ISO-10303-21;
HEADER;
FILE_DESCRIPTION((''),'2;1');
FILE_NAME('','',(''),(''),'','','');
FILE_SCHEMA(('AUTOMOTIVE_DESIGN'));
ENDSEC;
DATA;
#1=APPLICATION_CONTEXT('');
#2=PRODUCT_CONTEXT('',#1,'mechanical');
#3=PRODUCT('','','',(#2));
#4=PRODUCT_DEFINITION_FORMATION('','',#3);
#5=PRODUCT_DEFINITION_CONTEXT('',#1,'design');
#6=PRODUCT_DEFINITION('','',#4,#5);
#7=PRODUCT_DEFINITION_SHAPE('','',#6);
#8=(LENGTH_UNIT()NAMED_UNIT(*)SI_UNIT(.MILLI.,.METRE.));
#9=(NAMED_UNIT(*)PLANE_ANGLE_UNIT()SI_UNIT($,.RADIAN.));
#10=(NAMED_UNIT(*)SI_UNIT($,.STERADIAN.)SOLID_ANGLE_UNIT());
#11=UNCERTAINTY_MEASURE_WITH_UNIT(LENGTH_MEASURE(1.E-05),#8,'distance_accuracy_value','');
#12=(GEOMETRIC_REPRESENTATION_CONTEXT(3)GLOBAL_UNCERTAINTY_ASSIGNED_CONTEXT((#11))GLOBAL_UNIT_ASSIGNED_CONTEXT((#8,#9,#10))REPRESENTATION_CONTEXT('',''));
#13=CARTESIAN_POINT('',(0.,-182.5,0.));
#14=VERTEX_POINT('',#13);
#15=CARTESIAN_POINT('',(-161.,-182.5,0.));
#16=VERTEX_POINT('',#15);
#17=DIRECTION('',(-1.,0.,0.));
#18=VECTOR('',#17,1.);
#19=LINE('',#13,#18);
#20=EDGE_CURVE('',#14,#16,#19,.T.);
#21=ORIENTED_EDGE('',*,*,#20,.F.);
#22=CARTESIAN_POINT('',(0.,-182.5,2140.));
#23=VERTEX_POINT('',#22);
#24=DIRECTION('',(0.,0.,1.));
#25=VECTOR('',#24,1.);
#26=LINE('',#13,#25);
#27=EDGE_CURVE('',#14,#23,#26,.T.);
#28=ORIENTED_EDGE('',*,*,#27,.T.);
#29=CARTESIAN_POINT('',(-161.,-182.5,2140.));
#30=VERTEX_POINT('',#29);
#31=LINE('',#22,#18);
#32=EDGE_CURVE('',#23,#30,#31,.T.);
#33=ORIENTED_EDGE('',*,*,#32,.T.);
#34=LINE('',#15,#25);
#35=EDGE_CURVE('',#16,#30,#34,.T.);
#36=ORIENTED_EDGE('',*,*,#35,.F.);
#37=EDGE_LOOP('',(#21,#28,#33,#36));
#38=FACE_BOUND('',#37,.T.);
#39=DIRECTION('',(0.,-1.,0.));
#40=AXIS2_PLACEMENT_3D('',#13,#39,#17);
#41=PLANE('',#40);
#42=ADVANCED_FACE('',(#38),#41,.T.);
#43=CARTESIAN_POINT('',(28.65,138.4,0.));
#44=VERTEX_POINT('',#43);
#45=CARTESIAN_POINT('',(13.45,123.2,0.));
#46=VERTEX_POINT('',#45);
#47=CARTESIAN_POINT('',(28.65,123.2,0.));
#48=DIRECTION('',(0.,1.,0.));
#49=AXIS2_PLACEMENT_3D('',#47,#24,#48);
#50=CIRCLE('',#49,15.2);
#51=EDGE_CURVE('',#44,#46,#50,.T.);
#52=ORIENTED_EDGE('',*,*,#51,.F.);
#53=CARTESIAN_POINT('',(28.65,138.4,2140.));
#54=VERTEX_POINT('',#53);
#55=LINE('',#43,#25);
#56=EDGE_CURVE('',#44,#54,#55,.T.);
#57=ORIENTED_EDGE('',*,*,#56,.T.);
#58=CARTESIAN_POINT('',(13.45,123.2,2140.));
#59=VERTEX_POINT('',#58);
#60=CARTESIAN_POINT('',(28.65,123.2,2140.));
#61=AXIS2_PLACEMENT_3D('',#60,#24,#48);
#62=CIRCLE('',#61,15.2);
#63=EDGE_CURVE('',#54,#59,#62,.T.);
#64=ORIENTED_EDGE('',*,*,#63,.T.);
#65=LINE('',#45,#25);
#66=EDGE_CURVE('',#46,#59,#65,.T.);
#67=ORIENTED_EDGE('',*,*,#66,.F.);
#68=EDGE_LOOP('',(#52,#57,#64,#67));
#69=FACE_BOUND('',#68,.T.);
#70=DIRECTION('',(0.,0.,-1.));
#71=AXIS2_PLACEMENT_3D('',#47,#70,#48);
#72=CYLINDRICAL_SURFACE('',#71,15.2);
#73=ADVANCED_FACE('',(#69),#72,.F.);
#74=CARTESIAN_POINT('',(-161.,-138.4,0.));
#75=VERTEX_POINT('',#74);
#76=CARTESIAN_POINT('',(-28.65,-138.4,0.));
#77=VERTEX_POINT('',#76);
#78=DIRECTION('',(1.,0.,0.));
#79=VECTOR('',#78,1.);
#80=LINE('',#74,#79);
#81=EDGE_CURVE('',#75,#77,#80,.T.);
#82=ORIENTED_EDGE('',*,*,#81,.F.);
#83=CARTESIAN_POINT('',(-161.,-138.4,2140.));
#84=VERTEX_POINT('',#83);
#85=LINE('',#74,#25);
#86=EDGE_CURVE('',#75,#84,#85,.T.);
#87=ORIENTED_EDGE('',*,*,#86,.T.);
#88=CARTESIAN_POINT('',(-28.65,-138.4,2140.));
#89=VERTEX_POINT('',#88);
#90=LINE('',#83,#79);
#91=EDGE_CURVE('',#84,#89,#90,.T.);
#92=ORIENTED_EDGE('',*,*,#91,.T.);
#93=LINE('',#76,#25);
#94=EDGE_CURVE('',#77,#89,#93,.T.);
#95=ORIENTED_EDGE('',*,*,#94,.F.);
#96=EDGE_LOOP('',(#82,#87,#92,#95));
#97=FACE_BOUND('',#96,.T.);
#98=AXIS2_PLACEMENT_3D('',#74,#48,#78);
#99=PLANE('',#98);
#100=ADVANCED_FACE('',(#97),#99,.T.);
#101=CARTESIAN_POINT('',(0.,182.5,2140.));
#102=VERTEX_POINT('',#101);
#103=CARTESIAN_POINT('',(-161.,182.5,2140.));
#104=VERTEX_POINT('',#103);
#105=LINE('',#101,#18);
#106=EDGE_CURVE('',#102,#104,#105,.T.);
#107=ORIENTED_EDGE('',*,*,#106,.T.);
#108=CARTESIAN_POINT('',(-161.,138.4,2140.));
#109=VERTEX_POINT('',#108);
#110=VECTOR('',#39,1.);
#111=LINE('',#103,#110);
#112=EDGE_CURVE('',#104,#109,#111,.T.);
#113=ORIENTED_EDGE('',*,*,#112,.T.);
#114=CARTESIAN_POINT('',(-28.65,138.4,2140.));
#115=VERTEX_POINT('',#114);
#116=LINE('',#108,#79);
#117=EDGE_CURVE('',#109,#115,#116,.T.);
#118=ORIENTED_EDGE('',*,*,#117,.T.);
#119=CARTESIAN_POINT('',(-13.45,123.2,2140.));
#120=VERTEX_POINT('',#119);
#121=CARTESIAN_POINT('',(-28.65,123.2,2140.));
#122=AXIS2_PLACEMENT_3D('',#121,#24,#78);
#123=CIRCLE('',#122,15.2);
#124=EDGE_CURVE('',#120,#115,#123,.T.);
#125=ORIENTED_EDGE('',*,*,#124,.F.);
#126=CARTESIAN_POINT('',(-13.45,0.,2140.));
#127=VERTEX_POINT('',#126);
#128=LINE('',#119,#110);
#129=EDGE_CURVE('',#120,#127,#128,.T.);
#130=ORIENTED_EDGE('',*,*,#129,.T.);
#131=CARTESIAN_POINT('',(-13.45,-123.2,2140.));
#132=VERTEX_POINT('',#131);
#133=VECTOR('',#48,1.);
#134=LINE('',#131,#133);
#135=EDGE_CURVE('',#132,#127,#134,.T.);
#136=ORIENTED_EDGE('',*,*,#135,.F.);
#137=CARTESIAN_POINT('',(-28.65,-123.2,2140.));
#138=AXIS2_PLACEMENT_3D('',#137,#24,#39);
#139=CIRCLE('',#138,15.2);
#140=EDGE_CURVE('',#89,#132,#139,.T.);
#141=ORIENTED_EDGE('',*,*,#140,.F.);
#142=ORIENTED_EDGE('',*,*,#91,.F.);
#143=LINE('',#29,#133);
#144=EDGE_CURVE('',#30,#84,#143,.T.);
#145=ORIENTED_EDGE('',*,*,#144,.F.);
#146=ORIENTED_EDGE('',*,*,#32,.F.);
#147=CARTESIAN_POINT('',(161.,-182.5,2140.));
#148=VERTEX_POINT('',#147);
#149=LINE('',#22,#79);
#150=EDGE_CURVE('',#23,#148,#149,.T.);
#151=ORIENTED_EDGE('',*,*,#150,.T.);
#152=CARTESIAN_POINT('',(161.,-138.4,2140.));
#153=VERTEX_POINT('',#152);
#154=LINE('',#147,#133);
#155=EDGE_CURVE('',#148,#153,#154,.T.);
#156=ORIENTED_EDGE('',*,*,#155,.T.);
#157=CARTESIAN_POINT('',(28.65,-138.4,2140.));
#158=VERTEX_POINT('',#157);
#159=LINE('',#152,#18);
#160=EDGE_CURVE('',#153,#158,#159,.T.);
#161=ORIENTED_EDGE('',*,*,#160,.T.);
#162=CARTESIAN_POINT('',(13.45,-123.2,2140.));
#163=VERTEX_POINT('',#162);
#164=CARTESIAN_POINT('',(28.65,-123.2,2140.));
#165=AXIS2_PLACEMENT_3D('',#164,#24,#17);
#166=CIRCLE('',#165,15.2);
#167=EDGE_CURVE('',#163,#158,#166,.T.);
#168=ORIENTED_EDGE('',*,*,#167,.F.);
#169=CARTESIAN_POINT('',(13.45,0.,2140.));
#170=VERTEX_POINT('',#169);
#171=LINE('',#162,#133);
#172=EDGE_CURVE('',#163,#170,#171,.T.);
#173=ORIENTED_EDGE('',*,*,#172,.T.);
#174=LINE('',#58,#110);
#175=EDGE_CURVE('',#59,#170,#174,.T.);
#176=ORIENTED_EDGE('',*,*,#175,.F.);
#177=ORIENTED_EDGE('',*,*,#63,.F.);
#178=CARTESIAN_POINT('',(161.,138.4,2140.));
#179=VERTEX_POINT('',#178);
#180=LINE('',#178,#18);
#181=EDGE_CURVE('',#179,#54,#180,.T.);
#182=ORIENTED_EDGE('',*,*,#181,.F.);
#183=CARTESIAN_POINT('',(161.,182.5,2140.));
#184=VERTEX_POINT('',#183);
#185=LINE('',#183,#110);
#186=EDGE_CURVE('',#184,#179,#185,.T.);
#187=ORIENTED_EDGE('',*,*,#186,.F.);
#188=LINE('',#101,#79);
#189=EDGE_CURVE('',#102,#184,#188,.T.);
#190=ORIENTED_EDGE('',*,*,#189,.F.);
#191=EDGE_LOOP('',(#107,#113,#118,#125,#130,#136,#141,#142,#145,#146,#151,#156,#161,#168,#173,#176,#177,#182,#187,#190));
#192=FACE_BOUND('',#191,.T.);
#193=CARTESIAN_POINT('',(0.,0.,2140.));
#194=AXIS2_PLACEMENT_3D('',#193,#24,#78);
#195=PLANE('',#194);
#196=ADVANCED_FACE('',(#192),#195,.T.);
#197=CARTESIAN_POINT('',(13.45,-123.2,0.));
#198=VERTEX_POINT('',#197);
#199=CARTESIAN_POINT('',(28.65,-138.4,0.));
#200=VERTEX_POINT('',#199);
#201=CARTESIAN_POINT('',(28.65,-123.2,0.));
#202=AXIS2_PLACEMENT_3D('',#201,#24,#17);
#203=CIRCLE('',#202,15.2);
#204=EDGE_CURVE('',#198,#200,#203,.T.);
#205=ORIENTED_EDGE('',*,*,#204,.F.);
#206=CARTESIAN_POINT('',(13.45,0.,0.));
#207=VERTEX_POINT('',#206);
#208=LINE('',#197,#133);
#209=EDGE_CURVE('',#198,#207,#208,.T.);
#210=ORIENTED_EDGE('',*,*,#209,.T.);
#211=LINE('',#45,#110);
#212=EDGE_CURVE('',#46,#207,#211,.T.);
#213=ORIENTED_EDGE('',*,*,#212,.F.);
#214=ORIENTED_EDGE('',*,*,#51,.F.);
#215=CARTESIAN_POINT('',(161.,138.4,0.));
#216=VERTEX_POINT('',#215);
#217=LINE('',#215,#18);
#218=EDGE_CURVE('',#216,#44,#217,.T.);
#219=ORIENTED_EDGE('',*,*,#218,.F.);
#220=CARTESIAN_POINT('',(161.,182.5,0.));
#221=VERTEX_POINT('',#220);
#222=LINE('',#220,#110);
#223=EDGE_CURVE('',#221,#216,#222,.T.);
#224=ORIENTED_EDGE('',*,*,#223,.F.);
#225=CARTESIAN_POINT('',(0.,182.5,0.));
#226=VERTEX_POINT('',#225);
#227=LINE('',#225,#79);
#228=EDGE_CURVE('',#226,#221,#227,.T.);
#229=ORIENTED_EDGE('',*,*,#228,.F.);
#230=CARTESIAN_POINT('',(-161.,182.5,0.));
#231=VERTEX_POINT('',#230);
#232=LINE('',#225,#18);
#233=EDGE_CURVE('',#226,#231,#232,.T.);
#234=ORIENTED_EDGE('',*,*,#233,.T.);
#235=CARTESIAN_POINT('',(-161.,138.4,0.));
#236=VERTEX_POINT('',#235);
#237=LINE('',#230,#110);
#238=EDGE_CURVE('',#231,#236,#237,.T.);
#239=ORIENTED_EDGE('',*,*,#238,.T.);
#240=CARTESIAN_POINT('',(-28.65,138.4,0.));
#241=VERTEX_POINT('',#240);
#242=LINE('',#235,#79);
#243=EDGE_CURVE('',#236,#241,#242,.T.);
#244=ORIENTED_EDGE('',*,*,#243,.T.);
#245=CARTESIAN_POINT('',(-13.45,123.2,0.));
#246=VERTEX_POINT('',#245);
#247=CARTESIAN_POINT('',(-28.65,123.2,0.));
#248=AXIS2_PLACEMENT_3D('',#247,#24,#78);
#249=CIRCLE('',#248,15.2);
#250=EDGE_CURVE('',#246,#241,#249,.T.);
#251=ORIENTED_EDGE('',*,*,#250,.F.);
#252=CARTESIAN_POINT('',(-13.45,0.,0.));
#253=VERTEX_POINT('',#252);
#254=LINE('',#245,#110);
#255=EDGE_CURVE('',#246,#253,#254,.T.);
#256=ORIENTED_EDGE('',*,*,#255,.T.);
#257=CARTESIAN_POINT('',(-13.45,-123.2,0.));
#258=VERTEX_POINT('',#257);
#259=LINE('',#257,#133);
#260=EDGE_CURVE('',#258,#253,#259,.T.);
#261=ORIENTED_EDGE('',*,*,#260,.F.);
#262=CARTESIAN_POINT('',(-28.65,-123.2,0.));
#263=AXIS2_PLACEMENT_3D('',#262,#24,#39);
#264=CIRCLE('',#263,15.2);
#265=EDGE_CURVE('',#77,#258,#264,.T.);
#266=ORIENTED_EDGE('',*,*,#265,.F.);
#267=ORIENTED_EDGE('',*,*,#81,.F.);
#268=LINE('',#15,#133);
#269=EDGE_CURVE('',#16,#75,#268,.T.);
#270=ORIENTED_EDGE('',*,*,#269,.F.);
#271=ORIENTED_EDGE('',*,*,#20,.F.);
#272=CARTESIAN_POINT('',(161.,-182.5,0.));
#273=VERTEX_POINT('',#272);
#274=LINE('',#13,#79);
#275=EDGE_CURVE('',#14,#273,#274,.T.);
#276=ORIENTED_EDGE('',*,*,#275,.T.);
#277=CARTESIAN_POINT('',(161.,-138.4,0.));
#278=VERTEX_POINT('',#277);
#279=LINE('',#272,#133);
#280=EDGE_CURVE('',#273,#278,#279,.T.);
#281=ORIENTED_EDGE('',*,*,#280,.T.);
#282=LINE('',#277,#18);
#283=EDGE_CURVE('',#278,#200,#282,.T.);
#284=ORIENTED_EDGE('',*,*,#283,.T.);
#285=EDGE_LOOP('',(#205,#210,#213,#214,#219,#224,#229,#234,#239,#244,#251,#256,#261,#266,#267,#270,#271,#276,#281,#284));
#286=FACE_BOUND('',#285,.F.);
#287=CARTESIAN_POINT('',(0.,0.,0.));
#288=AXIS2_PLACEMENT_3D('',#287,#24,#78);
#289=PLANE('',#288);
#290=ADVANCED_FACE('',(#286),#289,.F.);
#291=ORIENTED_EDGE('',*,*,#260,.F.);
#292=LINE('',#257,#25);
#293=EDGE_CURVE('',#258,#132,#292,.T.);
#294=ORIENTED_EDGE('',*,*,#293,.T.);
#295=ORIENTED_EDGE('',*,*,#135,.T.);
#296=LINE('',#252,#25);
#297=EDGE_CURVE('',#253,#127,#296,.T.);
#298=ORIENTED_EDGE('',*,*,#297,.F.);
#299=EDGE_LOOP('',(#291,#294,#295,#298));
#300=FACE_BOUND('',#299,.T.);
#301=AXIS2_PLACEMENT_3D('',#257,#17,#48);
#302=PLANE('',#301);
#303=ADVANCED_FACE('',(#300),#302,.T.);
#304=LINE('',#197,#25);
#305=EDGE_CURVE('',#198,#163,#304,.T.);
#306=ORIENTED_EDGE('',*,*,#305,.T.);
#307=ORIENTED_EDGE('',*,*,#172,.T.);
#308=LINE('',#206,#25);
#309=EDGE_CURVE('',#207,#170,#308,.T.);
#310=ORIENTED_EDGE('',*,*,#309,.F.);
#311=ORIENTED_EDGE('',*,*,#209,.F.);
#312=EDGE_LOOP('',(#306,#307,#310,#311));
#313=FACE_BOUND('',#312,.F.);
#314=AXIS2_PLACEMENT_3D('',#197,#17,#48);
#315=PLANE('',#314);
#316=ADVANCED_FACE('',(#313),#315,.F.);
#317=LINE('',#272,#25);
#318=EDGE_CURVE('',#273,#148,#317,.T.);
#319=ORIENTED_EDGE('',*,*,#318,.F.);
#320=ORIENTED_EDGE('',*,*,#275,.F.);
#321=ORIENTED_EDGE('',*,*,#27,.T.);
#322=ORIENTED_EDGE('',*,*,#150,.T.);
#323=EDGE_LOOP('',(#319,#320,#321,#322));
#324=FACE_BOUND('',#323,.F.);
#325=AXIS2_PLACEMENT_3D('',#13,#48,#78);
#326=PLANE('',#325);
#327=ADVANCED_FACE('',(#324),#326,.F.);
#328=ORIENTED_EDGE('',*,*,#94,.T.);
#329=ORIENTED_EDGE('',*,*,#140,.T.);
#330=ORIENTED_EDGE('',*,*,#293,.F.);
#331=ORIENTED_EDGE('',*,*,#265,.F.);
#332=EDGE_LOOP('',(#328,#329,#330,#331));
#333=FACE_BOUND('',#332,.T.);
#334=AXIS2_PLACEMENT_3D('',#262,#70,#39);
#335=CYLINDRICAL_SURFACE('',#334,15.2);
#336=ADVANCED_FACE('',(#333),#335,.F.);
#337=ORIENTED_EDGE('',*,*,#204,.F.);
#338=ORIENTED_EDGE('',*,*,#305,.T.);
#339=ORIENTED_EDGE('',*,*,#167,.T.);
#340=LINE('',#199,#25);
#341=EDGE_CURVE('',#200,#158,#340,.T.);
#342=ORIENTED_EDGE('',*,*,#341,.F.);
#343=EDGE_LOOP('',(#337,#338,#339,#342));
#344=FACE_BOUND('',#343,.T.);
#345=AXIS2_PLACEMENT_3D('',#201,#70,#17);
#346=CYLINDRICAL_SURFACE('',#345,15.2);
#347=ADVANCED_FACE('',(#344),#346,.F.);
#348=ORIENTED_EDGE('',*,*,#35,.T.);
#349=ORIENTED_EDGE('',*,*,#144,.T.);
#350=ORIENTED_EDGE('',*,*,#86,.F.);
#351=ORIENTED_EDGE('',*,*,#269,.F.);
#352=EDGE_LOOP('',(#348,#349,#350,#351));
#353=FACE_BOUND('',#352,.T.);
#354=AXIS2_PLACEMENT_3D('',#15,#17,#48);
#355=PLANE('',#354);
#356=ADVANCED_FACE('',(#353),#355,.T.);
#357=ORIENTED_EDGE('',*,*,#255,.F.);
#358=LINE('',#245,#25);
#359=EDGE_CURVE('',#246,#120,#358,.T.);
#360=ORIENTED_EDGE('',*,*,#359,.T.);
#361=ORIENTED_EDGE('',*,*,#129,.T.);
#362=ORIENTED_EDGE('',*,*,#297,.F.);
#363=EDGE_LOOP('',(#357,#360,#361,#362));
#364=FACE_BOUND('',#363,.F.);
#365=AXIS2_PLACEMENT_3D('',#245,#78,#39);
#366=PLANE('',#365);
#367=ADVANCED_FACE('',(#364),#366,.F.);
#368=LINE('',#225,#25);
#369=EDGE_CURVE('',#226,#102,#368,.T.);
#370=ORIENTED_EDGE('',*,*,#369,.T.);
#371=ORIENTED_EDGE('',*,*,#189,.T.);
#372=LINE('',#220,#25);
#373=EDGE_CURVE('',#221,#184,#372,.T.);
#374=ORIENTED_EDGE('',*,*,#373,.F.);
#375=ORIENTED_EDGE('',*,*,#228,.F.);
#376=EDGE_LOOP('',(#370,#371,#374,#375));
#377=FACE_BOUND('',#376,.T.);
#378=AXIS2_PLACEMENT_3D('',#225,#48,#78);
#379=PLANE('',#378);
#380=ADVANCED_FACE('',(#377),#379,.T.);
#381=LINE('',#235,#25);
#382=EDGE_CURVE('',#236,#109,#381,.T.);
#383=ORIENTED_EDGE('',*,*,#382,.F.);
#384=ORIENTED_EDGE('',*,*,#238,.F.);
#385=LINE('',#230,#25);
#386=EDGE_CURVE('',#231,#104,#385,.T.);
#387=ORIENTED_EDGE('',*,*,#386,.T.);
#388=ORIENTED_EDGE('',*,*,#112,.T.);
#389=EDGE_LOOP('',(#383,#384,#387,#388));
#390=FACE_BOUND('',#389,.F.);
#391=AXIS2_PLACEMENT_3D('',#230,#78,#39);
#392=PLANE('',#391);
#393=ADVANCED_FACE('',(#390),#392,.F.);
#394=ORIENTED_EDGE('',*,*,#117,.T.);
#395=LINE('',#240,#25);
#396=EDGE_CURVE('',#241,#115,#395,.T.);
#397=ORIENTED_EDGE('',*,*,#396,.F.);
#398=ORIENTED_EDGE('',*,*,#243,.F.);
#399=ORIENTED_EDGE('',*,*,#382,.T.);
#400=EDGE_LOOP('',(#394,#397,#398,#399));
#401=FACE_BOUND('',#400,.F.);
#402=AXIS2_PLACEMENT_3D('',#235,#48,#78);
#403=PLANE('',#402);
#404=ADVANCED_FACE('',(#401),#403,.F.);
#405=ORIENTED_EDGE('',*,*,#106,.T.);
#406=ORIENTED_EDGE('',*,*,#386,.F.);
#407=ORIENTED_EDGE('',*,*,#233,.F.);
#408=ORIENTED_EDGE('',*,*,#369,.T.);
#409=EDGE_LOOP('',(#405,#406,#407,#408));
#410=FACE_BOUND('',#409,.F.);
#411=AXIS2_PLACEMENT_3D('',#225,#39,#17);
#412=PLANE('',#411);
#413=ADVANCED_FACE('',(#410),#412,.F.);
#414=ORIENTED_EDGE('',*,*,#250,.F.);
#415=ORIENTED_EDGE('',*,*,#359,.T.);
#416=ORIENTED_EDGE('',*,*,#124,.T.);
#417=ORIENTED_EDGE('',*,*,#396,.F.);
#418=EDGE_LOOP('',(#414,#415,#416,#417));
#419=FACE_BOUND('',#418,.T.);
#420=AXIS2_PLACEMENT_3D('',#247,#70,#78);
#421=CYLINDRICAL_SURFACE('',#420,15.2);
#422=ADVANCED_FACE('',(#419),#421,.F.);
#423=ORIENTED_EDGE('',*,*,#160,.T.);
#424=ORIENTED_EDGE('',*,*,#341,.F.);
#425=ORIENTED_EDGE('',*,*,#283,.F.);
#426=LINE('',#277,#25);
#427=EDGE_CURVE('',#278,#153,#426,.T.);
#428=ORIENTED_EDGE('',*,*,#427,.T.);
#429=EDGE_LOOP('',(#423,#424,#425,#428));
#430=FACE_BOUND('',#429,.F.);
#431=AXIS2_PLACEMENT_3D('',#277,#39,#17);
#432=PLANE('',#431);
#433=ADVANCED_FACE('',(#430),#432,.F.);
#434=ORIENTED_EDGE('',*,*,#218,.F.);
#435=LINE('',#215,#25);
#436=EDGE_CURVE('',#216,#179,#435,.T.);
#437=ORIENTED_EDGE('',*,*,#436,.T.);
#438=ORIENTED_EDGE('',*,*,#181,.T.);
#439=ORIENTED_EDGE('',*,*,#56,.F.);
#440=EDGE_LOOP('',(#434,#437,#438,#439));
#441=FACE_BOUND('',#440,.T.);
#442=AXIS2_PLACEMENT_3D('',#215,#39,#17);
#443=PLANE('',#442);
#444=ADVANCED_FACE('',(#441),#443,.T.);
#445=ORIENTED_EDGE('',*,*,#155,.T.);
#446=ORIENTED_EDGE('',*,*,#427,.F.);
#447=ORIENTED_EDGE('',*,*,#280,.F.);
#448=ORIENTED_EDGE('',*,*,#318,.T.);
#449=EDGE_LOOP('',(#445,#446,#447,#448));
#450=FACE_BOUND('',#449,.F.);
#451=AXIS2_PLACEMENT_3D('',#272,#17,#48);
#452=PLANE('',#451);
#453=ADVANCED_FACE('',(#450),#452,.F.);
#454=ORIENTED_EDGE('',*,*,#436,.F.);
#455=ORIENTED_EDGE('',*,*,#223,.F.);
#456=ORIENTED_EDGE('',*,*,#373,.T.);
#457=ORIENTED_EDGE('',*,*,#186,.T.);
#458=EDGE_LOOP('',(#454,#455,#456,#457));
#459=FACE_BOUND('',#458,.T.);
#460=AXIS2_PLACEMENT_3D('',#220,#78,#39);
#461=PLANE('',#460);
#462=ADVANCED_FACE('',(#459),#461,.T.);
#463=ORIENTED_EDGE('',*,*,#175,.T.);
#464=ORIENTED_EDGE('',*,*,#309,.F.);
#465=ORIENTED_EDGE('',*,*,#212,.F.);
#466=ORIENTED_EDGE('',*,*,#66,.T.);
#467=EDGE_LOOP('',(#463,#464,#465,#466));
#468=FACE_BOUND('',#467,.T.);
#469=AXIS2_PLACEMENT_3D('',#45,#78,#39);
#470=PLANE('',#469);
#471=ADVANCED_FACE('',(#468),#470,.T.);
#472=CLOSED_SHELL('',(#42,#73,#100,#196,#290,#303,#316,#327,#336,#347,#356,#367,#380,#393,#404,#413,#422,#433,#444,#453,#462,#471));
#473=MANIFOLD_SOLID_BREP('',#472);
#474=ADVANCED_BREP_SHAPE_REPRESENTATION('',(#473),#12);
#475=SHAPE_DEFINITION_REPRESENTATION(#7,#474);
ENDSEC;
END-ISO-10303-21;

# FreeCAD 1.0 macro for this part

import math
import FreeCAD as App
import Part
import Sketcher

doc = App.newDocument("Part")
body = doc.addObject("PartDesign::Body", "Body")

# Sketch on XY plane
sketch1 = body.newObject("Sketcher::SketchObject", "Sketch")
sketch1.AttachmentSupport = (doc.getObject("XY_Plane"), [""])
sketch1.MapMode = "FlatFace"
sketch1.addGeometry(Part.LineSegment(App.Vector(-161, -138, 0), App.Vector(-161, -182, 0)), False)
sketch1.addGeometry(Part.LineSegment(App.Vector(-161, -182, 0), App.Vector(161, -182, 0)), False)
sketch1.addGeometry(Part.LineSegment(App.Vector(161, -182, 0), App.Vector(161, -138, 0)), False)
sketch1.addGeometry(Part.LineSegment(App.Vector(161, -138, 0), App.Vector(29, -138, 0)), False)
sketch1.addGeometry(Part.ArcOfCircle(Part.Circle(App.Vector(29, -123, 0), App.Vector(0, 0, 1), 15), math.radians(180), math.radians(270)), False)
sketch1.addGeometry(Part.LineSegment(App.Vector(13, -123, 0), App.Vector(13, 123, 0)), False)
sketch1.addGeometry(Part.ArcOfCircle(Part.Circle(App.Vector(29, 123, 0), App.Vector(0, 0, 1), 15), math.radians(90), math.radians(180)), False)
sketch1.addGeometry(Part.LineSegment(App.Vector(29, 138, 0), App.Vector(161, 138, 0)), False)
sketch1.addGeometry(Part.LineSegment(App.Vector(161, 138, 0), App.Vector(161, 182, 0)), False)
sketch1.addGeometry(Part.LineSegment(App.Vector(161, 182, 0), App.Vector(-161, 182, 0)), False)
sketch1.addGeometry(Part.LineSegment(App.Vector(-161, 182, 0), App.Vector(-161, 138, 0)), False)
sketch1.addGeometry(Part.LineSegment(App.Vector(-161, 138, 0), App.Vector(-29, 138, 0)), False)
sketch1.addGeometry(Part.ArcOfCircle(Part.Circle(App.Vector(-29, 123, 0), App.Vector(0, 0, 1), 15), math.radians(0), math.radians(90)), False)
sketch1.addGeometry(Part.LineSegment(App.Vector(-13, 123, 0), App.Vector(-13, -123, 0)), False)
sketch1.addGeometry(Part.ArcOfCircle(Part.Circle(App.Vector(-29, -123, 0), App.Vector(0, 0, 1), 15), math.radians(-90), math.radians(0)), False)
sketch1.addGeometry(Part.LineSegment(App.Vector(-29, -138, 0), App.Vector(-161, -138, 0)), False)
sketch1.addConstraint(Sketcher.Constraint("Coincident", 0, 2, 1, 1))
sketch1.addConstraint(Sketcher.Constraint("Coincident", 1, 2, 2, 1))
sketch1.addConstraint(Sketcher.Constraint("Coincident", 2, 2, 3, 1))
sketch1.addConstraint(Sketcher.Constraint("Tangent", 3, 2, 4, 2))
sketch1.addConstraint(Sketcher.Constraint("Tangent", 4, 1, 5, 1))
sketch1.addConstraint(Sketcher.Constraint("Tangent", 5, 2, 6, 2))
sketch1.addConstraint(Sketcher.Constraint("Tangent", 6, 1, 7, 1))
sketch1.addConstraint(Sketcher.Constraint("Coincident", 7, 2, 8, 1))
sketch1.addConstraint(Sketcher.Constraint("Coincident", 8, 2, 9, 1))
sketch1.addConstraint(Sketcher.Constraint("Coincident", 9, 2, 10, 1))
sketch1.addConstraint(Sketcher.Constraint("Coincident", 10, 2, 11, 1))
sketch1.addConstraint(Sketcher.Constraint("Tangent", 11, 2, 12, 2))
sketch1.addConstraint(Sketcher.Constraint("Tangent", 12, 1, 13, 1))
sketch1.addConstraint(Sketcher.Constraint("Tangent", 13, 2, 14, 2))
sketch1.addConstraint(Sketcher.Constraint("Tangent", 14, 1, 15, 1))
sketch1.addConstraint(Sketcher.Constraint("Coincident", 15, 2, 0, 1))
sketch1.addConstraint(Sketcher.Constraint("Vertical", 0))
sketch1.addConstraint(Sketcher.Constraint("Horizontal", 1))
sketch1.addConstraint(Sketcher.Constraint("Vertical", 2))
sketch1.addConstraint(Sketcher.Constraint("Horizontal", 3))
sketch1.addConstraint(Sketcher.Constraint("Vertical", 5))
sketch1.addConstraint(Sketcher.Constraint("Horizontal", 7))
sketch1.addConstraint(Sketcher.Constraint("Vertical", 8))
sketch1.addConstraint(Sketcher.Constraint("Horizontal", 9))
sketch1.addConstraint(Sketcher.Constraint("Vertical", 10))
sketch1.addConstraint(Sketcher.Constraint("Horizontal", 11))
sketch1.addConstraint(Sketcher.Constraint("Vertical", 13))
sketch1.addConstraint(Sketcher.Constraint("Horizontal", 15))
sketch1.addConstraint(Sketcher.Constraint("Equal", 4, 6))
sketch1.addConstraint(Sketcher.Constraint("Equal", 6, 12))
sketch1.addConstraint(Sketcher.Constraint("Equal", 12, 14))
sketch1.addConstraint(Sketcher.Constraint("Symmetric", 4, 3, 12, 3, -1, 1))
sketch1.addConstraint(Sketcher.Constraint("Symmetric", 0, 2, 8, 2, -1, 1))
sketch1.addConstraint(Sketcher.Constraint("Symmetric", 7, 2, 10, 2, -2))
sketch1.addConstraint(Sketcher.Constraint("Symmetric", 2, 2, 15, 2, -2))
sketch1.addConstraint(Sketcher.Constraint("Radius", 4, 15.2))
sketch1.addConstraint(Sketcher.Constraint("DistanceY", 0, 2, 0, 1, 44.1))
sketch1.addConstraint(Sketcher.Constraint("DistanceX", 0, 2, -1, 1, 161.0))
sketch1.addConstraint(Sketcher.Constraint("DistanceY", 0, 2, -1, 1, 182.5))
sketch1.addConstraint(Sketcher.Constraint("DistanceX", -1, 1, 4, 1, 13.45))
pad1 = body.newObject("PartDesign::Pad", "Pad")
pad1.Profile = sketch1
pad1.Length = 2140

doc.recompute()
